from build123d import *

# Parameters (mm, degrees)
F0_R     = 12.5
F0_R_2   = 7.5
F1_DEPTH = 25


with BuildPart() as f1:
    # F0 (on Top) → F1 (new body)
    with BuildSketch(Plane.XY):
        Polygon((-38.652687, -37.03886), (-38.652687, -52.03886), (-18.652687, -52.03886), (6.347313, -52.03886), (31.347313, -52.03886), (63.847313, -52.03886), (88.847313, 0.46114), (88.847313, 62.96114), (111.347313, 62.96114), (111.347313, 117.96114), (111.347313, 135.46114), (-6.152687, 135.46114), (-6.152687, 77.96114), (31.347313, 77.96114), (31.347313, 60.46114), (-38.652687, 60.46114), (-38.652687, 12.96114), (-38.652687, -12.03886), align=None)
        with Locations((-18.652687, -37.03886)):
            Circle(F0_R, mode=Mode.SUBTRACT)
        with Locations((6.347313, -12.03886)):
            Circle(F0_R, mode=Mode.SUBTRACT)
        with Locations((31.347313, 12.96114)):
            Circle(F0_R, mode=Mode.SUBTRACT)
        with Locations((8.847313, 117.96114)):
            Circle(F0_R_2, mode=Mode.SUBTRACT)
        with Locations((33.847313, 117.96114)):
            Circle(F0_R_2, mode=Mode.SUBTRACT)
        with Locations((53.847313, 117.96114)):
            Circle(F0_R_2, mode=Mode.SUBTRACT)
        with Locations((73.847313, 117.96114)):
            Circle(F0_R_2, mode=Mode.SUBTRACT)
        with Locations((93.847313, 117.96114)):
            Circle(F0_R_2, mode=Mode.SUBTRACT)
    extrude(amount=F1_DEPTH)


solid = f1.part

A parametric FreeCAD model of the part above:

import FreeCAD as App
import Part
import Sketcher
from FreeCAD import Vector


def add_polygon(sketch, points):
    """Adds a closed chain of lines whose ends are joined by coincident constraints."""
    first, n = sketch.GeometryCount, len(points)
    for a, b in zip(points, points[1:] + points[:1]):
        sketch.addGeometry(Part.LineSegment(App.Vector(*a, 0), App.Vector(*b, 0)), False)
    for i in range(n):
        sketch.addConstraint(Sketcher.Constraint("Coincident", first + i, 2, first + (i + 1) % n, 1))

doc = App.newDocument("Part")
body = doc.addObject("PartDesign::Body", "Body")

# Sketch on XY plane
sketch1 = body.newObject("Sketcher::SketchObject", "Sketch")
sketch1.AttachmentSupport = (doc.getObject("XY_Plane"), [""])
sketch1.MapMode = "FlatFace"
add_polygon(sketch1, [(-38.652687, -52.03886), (63.847313, -52.03886), (88.847313, 0.46114), (88.847313, 62.96114), (111.347313, 62.96114), (111.347313, 135.46114), (-6.152687, 135.46114), (-6.152687, 77.96114), (31.347313, 77.96114), (31.347313, 60.46114), (-38.652687, 60.46114)])  # lines 0-10
sketch1.addGeometry(Part.Circle(Vector(-18.652687, -37.03886, 0), Vector(0, 0, 1), 12.5), False)  # 11
sketch1.addGeometry(Part.Circle(Vector(6.347313, -12.03886, 0), Vector(0, 0, 1), 12.5), False)  # 12
sketch1.addGeometry(Part.Circle(Vector(31.347313, 12.96114, 0), Vector(0, 0, 1), 12.5), False)  # 13
sketch1.addGeometry(Part.Circle(Vector(8.847313, 117.96114, 0), Vector(0, 0, 1), 7.5), False)  # 14
sketch1.addGeometry(Part.Circle(Vector(33.847313, 117.96114, 0), Vector(0, 0, 1), 7.5), False)  # 15
sketch1.addGeometry(Part.Circle(Vector(53.847313, 117.96114, 0), Vector(0, 0, 1), 7.5), False)  # 16
sketch1.addGeometry(Part.Circle(Vector(73.847313, 117.96114, 0), Vector(0, 0, 1), 7.5), False)  # 17
sketch1.addGeometry(Part.Circle(Vector(93.847313, 117.96114, 0), Vector(0, 0, 1), 7.5), False)  # 18
sketch1.addConstraint(Sketcher.Constraint("Horizontal", 0))
sketch1.addConstraint(Sketcher.Constraint("Vertical", 2))
sketch1.addConstraint(Sketcher.Constraint("Horizontal", 3))
sketch1.addConstraint(Sketcher.Constraint("Vertical", 4))
sketch1.addConstraint(Sketcher.Constraint("Horizontal", 5))
sketch1.addConstraint(Sketcher.Constraint("Vertical", 6))
sketch1.addConstraint(Sketcher.Constraint("Horizontal", 7))
sketch1.addConstraint(Sketcher.Constraint("Vertical", 8))
sketch1.addConstraint(Sketcher.Constraint("Horizontal", 9))
sketch1.addConstraint(Sketcher.Constraint("Vertical", 10))
sketch1.addConstraint(Sketcher.Constraint("Equal", 11, 12))
sketch1.addConstraint(Sketcher.Constraint("Equal", 12, 13))
sketch1.addConstraint(Sketcher.Constraint("Equal", 14, 15))
sketch1.addConstraint(Sketcher.Constraint("Equal", 15, 16))
sketch1.addConstraint(Sketcher.Constraint("Equal", 16, 17))
sketch1.addConstraint(Sketcher.Constraint("Equal", 17, 18))
sketch1.addConstraint(Sketcher.Constraint("Horizontal", 14, 3, 15, 3))
sketch1.addConstraint(Sketcher.Constraint("Horizontal", 15, 3, 16, 3))
sketch1.addConstraint(Sketcher.Constraint("Horizontal", 16, 3, 17, 3))
sketch1.addConstraint(Sketcher.Constraint("Horizontal", 17, 3, 18, 3))
sketch1.addConstraint(Sketcher.Constraint("Vertical", 13, 3, 7, 2))
sketch1.addConstraint(Sketcher.Constraint("Diameter", 11, 25.0))
sketch1.addConstraint(Sketcher.Constraint("Diameter", 14, 15.0))
sketch1.addConstraint(Sketcher.Constraint("DistanceX", 9, 2, 9, 1, 70.0))
sketch1.addConstraint(Sketcher.Constraint("DistanceX", 0, 1, 0, 2, 102.5))
sketch1.addConstraint(Sketcher.Constraint("DistanceX", 3, 1, 3, 2, 22.5))
sketch1.addConstraint(Sketcher.Constraint("DistanceX", 5, 2, 5, 1, 117.5))
sketch1.addConstraint(Sketcher.Constraint("DistanceX", 7, 1, 7, 2, 37.5))
sketch1.addConstraint(Sketcher.Constraint("DistanceY", 2, 1, 2, 2, 62.5))
sketch1.addConstraint(Sketcher.Constraint("DistanceY", 4, 1, 4, 2, 72.5))
sketch1.addConstraint(Sketcher.Constraint("DistanceY", 6, 2, 6, 1, 57.5))
sketch1.addConstraint(Sketcher.Constraint("DistanceY", 8, 2, 8, 1, 17.5))
sketch1.addConstraint(Sketcher.Constraint("DistanceY", 10, 2, 10, 1, 112.5))
sketch1.addConstraint(Sketcher.Constraint("DistanceX", 11, 3, 12, 3, 25.0))
sketch1.addConstraint(Sketcher.Constraint("DistanceY", 11, 3, 12, 3, 25.0))
sketch1.addConstraint(Sketcher.Constraint("DistanceX", 12, 3, 13, 3, 25.0))
sketch1.addConstraint(Sketcher.Constraint("DistanceY", 12, 3, 13, 3, 25.0))
sketch1.addConstraint(Sketcher.Constraint("DistanceY", 13, 3, 14, 3, 105.0))
sketch1.addConstraint(Sketcher.Constraint("DistanceX", 14, 3, 15, 3, 25.0))
sketch1.addConstraint(Sketcher.Constraint("DistanceX", 15, 3, 16, 3, 20.0))
sketch1.addConstraint(Sketcher.Constraint("DistanceX", 16, 3, 17, 3, 20.0))
sketch1.addConstraint(Sketcher.Constraint("DistanceX", 17, 3, 18, 3, 20.0))
sketch1.addConstraint(Sketcher.Constraint("DistanceY", 0, 2, 12, 3, 40.0))
sketch1.addConstraint(Sketcher.Constraint("DistanceX", 16, 3, 0, 2, 10.0))
sketch1.addConstraint(Sketcher.Constraint("DistanceY", 11, 3, -1, 1, 37.03886))
sketch1.addConstraint(Sketcher.Constraint("DistanceX", 11, 3, -1, 1, 18.652687))
pad1 = body.newObject("PartDesign::Pad", "Pad")
pad1.Profile = sketch1
pad1.Length = 25

doc.recompute()
